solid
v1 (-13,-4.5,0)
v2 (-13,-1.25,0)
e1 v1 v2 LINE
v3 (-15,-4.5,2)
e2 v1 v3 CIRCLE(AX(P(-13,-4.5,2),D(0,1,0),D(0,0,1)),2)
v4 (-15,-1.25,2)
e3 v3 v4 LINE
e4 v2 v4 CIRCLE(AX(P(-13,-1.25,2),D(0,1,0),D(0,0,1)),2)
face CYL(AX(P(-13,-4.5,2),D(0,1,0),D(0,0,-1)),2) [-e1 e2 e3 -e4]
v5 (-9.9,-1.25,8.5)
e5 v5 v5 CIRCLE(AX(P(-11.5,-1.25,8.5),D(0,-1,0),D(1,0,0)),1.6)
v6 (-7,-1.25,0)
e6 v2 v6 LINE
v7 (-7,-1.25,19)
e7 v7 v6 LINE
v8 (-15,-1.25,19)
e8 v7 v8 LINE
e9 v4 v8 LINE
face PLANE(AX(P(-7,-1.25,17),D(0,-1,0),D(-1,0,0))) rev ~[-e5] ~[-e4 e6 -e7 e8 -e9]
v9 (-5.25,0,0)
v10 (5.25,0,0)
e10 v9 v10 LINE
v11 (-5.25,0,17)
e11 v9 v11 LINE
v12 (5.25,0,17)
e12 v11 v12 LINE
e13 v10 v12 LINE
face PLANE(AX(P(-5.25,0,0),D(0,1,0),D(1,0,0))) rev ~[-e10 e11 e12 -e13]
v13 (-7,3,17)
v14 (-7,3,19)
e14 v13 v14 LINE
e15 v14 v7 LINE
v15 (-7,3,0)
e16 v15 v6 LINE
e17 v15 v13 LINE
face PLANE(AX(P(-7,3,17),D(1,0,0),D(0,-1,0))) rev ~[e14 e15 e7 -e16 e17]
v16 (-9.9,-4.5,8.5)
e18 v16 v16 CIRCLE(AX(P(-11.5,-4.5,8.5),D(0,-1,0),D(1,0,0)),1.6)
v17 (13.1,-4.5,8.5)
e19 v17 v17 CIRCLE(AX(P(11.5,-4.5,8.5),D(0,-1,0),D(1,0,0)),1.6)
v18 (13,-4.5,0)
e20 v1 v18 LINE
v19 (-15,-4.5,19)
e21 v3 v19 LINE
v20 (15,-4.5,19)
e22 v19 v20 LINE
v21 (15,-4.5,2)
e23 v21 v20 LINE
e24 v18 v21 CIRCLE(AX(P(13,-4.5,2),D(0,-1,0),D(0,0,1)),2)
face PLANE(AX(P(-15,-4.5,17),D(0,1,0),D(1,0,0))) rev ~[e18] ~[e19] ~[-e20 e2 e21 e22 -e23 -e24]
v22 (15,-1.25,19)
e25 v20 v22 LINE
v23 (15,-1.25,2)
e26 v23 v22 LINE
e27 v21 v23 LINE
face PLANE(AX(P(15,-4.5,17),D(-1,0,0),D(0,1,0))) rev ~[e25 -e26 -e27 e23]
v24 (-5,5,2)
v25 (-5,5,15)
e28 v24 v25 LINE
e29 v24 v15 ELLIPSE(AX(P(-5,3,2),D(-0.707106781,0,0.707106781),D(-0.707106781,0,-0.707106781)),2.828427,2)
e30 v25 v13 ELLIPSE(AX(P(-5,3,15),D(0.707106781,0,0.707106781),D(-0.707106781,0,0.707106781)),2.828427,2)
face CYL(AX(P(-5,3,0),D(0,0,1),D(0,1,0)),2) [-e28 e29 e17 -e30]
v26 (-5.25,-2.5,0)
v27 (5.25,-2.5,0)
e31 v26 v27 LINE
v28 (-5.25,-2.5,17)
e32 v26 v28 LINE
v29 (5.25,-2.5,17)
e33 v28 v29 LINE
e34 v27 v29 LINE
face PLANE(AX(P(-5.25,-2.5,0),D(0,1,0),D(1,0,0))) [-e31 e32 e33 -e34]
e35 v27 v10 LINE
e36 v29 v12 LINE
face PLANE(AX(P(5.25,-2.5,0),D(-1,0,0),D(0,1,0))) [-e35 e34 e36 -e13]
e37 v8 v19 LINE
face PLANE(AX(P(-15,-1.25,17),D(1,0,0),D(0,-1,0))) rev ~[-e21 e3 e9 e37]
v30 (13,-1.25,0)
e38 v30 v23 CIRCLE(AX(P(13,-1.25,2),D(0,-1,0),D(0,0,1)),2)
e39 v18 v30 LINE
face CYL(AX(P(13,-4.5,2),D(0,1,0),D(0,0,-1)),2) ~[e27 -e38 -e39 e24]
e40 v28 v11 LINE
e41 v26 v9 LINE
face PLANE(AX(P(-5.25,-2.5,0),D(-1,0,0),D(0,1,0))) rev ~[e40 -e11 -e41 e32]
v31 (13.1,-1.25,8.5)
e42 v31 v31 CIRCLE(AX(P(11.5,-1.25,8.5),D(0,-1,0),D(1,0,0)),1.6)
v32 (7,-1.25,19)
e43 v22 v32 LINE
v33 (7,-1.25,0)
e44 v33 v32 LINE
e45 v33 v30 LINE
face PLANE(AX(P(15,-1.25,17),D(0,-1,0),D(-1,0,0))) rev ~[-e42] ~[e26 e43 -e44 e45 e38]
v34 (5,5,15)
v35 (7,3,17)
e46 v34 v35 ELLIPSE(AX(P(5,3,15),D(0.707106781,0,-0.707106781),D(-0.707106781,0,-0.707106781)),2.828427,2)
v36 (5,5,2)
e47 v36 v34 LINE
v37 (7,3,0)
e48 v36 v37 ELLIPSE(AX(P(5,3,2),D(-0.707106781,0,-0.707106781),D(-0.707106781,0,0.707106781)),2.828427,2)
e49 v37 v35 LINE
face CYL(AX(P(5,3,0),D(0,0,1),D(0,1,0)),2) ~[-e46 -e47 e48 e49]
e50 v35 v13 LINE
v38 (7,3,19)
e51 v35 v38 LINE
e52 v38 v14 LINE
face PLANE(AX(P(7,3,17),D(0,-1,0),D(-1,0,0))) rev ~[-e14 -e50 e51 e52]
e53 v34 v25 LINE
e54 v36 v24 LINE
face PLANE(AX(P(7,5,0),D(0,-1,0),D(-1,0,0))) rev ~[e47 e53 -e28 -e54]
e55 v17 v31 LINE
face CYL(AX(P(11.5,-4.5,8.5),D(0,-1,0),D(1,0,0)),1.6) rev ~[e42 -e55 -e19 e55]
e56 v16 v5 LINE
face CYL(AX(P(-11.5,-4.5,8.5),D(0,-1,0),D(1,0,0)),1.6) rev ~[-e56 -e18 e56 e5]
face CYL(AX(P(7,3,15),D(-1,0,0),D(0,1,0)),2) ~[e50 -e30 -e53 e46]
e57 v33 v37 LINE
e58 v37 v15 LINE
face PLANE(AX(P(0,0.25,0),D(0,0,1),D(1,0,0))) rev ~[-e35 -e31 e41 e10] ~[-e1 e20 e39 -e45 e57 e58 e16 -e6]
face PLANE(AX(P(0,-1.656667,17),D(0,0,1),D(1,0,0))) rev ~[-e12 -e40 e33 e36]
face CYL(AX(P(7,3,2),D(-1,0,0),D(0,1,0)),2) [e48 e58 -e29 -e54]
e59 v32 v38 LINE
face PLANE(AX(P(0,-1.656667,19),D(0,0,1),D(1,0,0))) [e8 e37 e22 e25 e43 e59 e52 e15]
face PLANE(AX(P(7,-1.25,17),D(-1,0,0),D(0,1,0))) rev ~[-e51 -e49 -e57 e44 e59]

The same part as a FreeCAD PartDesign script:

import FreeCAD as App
import Part
import Sketcher

V = App.Vector
Q = App.Units.Quantity


def edges_at(feature, points):
    """Names of the edges that pass closest to the given points."""
    edges = feature.Shape.Edges
    near = lambda p: min(range(len(edges)), key=lambda i: edges[i].distToShape(Part.Vertex(*p))[0])
    return sorted({f"Edge{near(p) + 1}" for p in points})


def add_polygon(sketch, points):
    """Adds a closed chain of lines whose ends are joined by coincident constraints."""
    first, n = sketch.GeometryCount, len(points)
    for a, b in zip(points, points[1:] + points[:1]):
        sketch.addGeometry(Part.LineSegment(App.Vector(*a, 0), App.Vector(*b, 0)), False)
    for i in range(n):
        sketch.addConstraint(Sketcher.Constraint("Coincident", first + i, 2, first + (i + 1) % n, 1))

doc = App.newDocument("Part")
params = doc.addObject("Spreadsheet::Sheet", "Params")
for row, (alias, value) in enumerate([
    ("sketch1_width", "14 mm"),
    ("sketch1_width2", "8 mm"),
    ("sketch1_width3", "10.5 mm"),
    ("sketch1_height", "2.5 mm"),
    ("sketch1_height2", "6.25 mm"),
    ("pad1_length", "17 mm"),
    ("sketch2_diameter", "3.2 mm"),
    ("pocket1_length", "25 mm"),
    ("fillet_radius", "2 mm"),
    ("sketch3_width", "8 mm"),
    ("sketch3_width2", "30 mm"),
    ("sketch3_height", "3.25 mm"),
    ("sketch3_height2", "4.25 mm"),
    ("pad2_length", "2 mm"),
], start=1):
    params.set(f"A{row}", alias)
    params.set(f"B{row}", "=" + value)
    params.setAlias(f"B{row}", alias)

body = doc.addObject("PartDesign::Body", "Body")

sketch1 = body.newObject("Sketcher::SketchObject", "Sketch")
sketch1.AttachmentSupport = (doc.getObject("XY_Plane"), [""])
sketch1.MapMode = "FlatFace"
add_polygon(sketch1, [(7, 5), (-7, 5), (-7, -1.25), (-15, -1.25), (-15, -4.5), (15, -4.5), (15, -1.25), (7, -1.25)])
add_polygon(sketch1, [(5.25, -2.5), (-5.25, -2.5), (-5.25, 0), (5.25, 0)])
sketch1.addConstraint(Sketcher.Constraint("Horizontal", 0))
sketch1.addConstraint(Sketcher.Constraint("Vertical", 1))
sketch1.addConstraint(Sketcher.Constraint("Horizontal", 2))
sketch1.addConstraint(Sketcher.Constraint("Vertical", 3))
sketch1.addConstraint(Sketcher.Constraint("Horizontal", 4))
sketch1.addConstraint(Sketcher.Constraint("Vertical", 5))
sketch1.addConstraint(Sketcher.Constraint("Horizontal", 6))
sketch1.addConstraint(Sketcher.Constraint("Vertical", 7))
sketch1.addConstraint(Sketcher.Constraint("Horizontal", 8))
sketch1.addConstraint(Sketcher.Constraint("Vertical", 9))
sketch1.addConstraint(Sketcher.Constraint("Horizontal", 10))
sketch1.addConstraint(Sketcher.Constraint("Vertical", 11))
sketch1.addConstraint(Sketcher.Constraint("Symmetric", 9, 2, 10, 2, -1, 1))
sketch1.addConstraint(Sketcher.Constraint("Symmetric", 2, 2, 5, 2, -2))
sketch1.addConstraint(Sketcher.Constraint("Equal", 2, 6))
sketch1.addConstraint(Sketcher.Constraint("DistanceX", 0, 2, 0, 1, Q("14 mm")))
sketch1.addConstraint(Sketcher.Constraint("DistanceX", 2, 2, 2, 1, Q("8 mm")))
sketch1.addConstraint(Sketcher.Constraint("DistanceX", 8, 2, 8, 1, Q("10.5 mm")))
sketch1.addConstraint(Sketcher.Constraint("DistanceY", 9, 1, 9, 2, Q("2.5 mm")))
sketch1.addConstraint(Sketcher.Constraint("DistanceY", -1, 1, 0, 2, Q("5 mm")))
sketch1.addConstraint(Sketcher.Constraint("DistanceY", 3, 2, 8, 2, Q("2 mm")))
sketch1.addConstraint(Sketcher.Constraint("DistanceY", 1, 2, 1, 1, Q("6.25 mm")))
sketch1.setExpression("Constraints[27]", "Params.sketch1_width")
sketch1.setExpression("Constraints[28]", "Params.sketch1_width2")
sketch1.setExpression("Constraints[29]", "Params.sketch1_width3")
sketch1.setExpression("Constraints[30]", "Params.sketch1_height")
sketch1.setExpression("Constraints[33]", "Params.sketch1_height2")
pad1 = body.newObject("PartDesign::Pad", "Pad")
pad1.Profile = sketch1
pad1.setExpression("Length", "Params.pad1_length")

sketch2 = body.newObject("Sketcher::SketchObject", "Sketch001")
sketch2.AttachmentSupport = (doc.getObject("XZ_Plane"), [""])
sketch2.MapMode = "FlatFace"
sketch2.AttachmentOffset = App.Placement(V(0, 0, 4.5), App.Rotation())
sketch2.addGeometry(Part.Circle(V(11.5, 8.5, 0), V(0, 0, 1), 1.6), False)
sketch2.addGeometry(Part.Circle(V(-11.5, 8.5, 0), V(0, 0, 1), 1.6), False)
sketch2.addConstraint(Sketcher.Constraint("Equal", 0, 1))
sketch2.addConstraint(Sketcher.Constraint("Symmetric", 0, 3, 1, 3, -2))
sketch2.addConstraint(Sketcher.Constraint("Diameter", 0, Q("3.2 mm")))
sketch2.addConstraint(Sketcher.Constraint("DistanceX", 1, 3, 0, 3, Q("23 mm")))
sketch2.addConstraint(Sketcher.Constraint("DistanceY", -1, 1, 0, 3, Q("8.5 mm")))
sketch2.setExpression("Constraints[2]", "Params.sketch2_diameter")
pocket1 = body.newObject("PartDesign::Pocket", "Pocket")
pocket1.Profile = sketch2
pocket1.setExpression("Length", "Params.pocket1_length")
doc.recompute()

fillet = body.newObject("PartDesign::Fillet", "Fillet")
fillet.Base = (pocket1, edges_at(pocket1, [
    (0, 5, 0),
    (-7, 5, 8.5),
    (0, 5, 17),
    (7, 5, 8.5),
    (-15, -2.875, 0),
    (15, -2.875, 0),
]))
fillet.setExpression("Radius", "Params.fillet_radius")

sketch3 = body.newObject("Sketcher::SketchObject", "Sketch002")
sketch3.AttachmentSupport = (doc.getObject("XY_Plane"), [""])
sketch3.MapMode = "FlatFace"
sketch3.AttachmentOffset = App.Placement(V(0, 0, 17), App.Rotation())
add_polygon(sketch3, [(-7, -1.25), (-15, -1.25), (-15, -4.5), (15, -4.5), (15, -1.25), (7, -1.25), (7, 3), (-7, 3)])
sketch3.addConstraint(Sketcher.Constraint("Horizontal", 0))
sketch3.addConstraint(Sketcher.Constraint("Vertical", 1))
sketch3.addConstraint(Sketcher.Constraint("Horizontal", 2))
sketch3.addConstraint(Sketcher.Constraint("Vertical", 3))
sketch3.addConstraint(Sketcher.Constraint("Horizontal", 4))
sketch3.addConstraint(Sketcher.Constraint("Vertical", 5))
sketch3.addConstraint(Sketcher.Constraint("Horizontal", 6))
sketch3.addConstraint(Sketcher.Constraint("Vertical", 7))
sketch3.addConstraint(Sketcher.Constraint("Symmetric", 0, 2, 3, 2, -2))
sketch3.addConstraint(Sketcher.Constraint("Equal", 0, 4))
sketch3.addConstraint(Sketcher.Constraint("DistanceX", 0, 2, 0, 1, Q("8 mm")))
sketch3.addConstraint(Sketcher.Constraint("DistanceX", 2, 1, 2, 2, Q("30 mm")))
sketch3.addConstraint(Sketcher.Constraint("DistanceY", -1, 1, 5, 2, Q("3 mm")))
sketch3.addConstraint(Sketcher.Constraint("DistanceY", 1, 2, 1, 1, Q("3.25 mm")))
sketch3.addConstraint(Sketcher.Constraint("DistanceY", 5, 1, 5, 2, Q("4.25 mm")))
sketch3.setExpression("Constraints[18]", "Params.sketch3_width")
sketch3.setExpression("Constraints[19]", "Params.sketch3_width2")
sketch3.setExpression("Constraints[21]", "Params.sketch3_height")
sketch3.setExpression("Constraints[22]", "Params.sketch3_height2")
pad2 = body.newObject("PartDesign::Pad", "Pad001")
pad2.Profile = sketch3
pad2.setExpression("Length", "Params.pad2_length")

doc.recompute()
